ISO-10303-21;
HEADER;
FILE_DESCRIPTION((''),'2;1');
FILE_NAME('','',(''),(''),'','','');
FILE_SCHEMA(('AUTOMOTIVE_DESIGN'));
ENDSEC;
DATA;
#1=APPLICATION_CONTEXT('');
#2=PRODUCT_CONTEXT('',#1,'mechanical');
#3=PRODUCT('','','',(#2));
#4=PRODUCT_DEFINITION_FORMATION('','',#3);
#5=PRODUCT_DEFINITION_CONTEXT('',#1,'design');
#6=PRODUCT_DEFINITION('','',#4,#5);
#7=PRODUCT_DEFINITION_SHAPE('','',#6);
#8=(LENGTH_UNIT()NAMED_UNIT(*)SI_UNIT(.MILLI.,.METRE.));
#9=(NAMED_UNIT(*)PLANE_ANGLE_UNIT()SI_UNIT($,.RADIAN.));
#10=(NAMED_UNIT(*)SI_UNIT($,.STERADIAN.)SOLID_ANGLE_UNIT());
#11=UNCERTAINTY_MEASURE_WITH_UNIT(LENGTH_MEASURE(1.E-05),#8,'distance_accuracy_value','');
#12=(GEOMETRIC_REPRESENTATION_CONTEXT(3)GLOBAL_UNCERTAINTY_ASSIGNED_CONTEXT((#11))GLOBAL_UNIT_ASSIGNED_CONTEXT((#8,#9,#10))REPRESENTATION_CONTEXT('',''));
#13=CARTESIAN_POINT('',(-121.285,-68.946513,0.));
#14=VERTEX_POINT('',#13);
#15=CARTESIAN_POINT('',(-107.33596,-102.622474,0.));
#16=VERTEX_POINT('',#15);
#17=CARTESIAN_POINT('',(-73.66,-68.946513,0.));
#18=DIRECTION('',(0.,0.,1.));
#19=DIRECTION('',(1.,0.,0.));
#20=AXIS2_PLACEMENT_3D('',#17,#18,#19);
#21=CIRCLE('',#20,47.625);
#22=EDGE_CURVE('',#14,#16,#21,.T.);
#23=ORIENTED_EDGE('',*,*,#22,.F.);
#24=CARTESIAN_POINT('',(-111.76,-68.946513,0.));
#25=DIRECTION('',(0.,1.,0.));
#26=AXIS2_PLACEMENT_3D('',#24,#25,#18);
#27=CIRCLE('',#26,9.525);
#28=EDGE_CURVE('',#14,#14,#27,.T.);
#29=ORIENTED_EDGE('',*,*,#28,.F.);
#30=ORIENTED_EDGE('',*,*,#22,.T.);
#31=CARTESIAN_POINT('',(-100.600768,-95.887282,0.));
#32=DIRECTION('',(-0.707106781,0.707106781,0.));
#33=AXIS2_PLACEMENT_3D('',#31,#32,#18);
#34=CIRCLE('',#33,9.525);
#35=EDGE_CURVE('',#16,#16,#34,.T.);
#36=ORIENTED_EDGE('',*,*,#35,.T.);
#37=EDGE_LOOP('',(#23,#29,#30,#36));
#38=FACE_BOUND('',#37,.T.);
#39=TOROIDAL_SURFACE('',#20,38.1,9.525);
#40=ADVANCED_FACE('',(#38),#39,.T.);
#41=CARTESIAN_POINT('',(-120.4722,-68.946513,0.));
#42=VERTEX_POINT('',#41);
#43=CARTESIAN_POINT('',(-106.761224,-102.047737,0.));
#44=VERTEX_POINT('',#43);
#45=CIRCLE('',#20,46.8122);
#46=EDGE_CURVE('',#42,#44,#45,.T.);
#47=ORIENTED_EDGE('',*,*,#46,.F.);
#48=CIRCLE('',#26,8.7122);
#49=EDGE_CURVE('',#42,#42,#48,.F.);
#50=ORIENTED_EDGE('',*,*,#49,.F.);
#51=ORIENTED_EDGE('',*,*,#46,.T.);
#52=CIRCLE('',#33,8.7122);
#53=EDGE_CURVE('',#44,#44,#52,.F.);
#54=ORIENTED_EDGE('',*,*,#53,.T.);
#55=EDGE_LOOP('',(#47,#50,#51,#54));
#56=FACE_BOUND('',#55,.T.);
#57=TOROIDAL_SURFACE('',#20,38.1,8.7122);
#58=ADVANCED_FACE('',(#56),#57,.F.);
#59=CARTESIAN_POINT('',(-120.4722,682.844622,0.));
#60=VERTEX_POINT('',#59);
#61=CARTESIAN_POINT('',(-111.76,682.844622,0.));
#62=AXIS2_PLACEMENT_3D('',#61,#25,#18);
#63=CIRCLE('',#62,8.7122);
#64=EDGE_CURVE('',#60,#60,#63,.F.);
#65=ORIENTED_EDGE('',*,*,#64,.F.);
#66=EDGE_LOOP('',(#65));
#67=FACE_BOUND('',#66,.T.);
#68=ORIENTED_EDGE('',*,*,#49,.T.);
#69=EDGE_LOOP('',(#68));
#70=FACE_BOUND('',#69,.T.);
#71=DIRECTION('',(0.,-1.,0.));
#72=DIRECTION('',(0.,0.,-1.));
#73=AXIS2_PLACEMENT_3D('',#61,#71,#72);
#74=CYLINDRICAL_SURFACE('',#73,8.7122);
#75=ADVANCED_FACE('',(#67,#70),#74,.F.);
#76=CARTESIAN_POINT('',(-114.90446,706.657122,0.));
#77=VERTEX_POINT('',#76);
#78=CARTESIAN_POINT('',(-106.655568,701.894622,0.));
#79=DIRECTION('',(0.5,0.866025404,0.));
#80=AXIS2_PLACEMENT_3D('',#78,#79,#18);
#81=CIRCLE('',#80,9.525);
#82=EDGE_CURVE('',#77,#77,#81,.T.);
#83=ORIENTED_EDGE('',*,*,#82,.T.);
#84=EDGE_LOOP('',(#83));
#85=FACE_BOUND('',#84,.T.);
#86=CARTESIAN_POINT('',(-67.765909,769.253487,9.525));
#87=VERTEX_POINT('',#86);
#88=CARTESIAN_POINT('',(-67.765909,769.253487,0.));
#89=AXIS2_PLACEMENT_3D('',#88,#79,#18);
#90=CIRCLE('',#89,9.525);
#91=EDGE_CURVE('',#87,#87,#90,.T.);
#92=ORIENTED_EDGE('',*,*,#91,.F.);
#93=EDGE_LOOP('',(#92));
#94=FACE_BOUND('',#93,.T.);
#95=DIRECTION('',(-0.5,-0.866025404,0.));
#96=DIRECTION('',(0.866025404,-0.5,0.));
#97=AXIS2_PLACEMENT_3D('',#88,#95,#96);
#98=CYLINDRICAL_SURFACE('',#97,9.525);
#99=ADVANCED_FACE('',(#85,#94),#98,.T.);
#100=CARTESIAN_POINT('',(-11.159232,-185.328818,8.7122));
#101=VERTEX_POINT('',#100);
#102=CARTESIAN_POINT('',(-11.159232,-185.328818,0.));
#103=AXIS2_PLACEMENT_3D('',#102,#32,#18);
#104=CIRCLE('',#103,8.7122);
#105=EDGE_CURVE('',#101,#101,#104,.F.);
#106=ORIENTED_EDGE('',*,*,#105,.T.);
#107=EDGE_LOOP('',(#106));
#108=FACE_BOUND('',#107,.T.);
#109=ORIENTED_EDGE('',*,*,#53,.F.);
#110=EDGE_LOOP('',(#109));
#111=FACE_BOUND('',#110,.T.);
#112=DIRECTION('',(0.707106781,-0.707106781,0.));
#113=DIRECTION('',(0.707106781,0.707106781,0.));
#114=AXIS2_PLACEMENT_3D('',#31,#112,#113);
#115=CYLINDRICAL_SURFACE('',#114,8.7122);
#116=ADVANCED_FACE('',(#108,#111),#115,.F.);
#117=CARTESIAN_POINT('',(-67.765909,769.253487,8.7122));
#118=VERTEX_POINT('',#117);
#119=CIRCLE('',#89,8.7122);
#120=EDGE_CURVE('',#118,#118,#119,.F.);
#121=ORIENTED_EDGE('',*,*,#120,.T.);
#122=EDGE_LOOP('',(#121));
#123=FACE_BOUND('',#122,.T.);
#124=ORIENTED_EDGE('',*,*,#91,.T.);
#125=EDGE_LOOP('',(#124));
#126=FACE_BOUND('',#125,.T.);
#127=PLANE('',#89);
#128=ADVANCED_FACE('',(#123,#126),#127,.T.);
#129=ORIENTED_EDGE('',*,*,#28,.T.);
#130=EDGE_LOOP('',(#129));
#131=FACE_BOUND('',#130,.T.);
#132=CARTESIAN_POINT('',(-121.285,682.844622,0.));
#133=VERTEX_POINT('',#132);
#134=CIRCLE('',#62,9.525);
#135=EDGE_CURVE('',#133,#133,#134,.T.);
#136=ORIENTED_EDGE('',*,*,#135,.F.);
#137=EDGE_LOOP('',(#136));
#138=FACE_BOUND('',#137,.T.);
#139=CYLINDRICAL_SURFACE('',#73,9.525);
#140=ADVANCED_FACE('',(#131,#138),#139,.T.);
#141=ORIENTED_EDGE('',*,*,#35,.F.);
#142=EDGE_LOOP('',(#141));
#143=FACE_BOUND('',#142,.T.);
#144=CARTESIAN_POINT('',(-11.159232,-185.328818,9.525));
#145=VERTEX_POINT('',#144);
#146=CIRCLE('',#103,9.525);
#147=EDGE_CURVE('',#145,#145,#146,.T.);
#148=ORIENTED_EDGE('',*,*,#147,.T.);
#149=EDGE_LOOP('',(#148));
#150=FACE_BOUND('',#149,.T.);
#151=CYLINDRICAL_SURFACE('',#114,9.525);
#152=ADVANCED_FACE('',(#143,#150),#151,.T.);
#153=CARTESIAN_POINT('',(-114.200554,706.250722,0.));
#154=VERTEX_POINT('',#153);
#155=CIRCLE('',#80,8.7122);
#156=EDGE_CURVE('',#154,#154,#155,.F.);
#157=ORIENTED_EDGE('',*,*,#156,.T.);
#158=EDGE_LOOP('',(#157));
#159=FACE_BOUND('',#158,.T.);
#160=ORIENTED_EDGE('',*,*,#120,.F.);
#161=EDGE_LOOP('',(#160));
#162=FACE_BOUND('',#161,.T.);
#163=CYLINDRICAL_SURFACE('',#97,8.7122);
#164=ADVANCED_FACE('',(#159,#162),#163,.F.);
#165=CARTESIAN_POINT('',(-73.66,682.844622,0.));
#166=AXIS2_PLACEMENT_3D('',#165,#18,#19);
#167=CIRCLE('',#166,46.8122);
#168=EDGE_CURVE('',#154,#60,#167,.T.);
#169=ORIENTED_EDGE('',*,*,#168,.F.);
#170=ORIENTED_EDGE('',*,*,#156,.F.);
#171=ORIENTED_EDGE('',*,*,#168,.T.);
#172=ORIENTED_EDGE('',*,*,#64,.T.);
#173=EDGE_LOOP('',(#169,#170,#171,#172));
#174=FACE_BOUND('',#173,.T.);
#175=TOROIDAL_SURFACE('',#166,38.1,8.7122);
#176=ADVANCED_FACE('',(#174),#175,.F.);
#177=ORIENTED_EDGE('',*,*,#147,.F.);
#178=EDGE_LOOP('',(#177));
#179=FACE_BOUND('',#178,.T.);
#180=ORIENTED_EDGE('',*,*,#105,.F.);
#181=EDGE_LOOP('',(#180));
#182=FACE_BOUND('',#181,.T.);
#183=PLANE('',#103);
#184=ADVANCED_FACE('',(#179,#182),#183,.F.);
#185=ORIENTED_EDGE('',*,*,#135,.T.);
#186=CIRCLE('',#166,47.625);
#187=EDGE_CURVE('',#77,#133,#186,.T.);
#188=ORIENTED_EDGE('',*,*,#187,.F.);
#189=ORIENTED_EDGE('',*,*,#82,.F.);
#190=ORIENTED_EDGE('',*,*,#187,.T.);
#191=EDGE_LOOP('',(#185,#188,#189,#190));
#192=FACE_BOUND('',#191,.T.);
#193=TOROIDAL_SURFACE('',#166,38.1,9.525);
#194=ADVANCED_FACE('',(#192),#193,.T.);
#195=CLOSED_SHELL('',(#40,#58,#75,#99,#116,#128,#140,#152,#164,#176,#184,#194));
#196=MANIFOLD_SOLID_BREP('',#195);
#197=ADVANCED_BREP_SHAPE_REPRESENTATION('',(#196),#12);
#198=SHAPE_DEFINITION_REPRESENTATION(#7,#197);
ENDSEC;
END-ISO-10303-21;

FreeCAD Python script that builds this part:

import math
import FreeCAD as App
import Part
import Sketcher

V = App.Vector
Q = App.Units.Quantity

doc = App.newDocument("Part")
body = doc.addObject("PartDesign::Body", "Body")

# Sketch on XZ plane
sketch1 = doc.addObject("Sketcher::SketchObject", "Sketch")
body.addObject(sketch1)
sketch1.AttachmentSupport = (doc.XZ_Plane, [""])
sketch1.MapMode = "FlatFace"
sketch1.addGeometry([
    Part.Circle(V(-112, 0, 0), V(0, 0, 1), 10),
    Part.Circle(V(-112, 0, 0), V(0, 0, 1), 9),
], False)
sketch1.addConstraint([
    Sketcher.Constraint("Coincident", 1, 3, 0, 3),
    Sketcher.Constraint("PointOnObject", 0, 3, -1),
    Sketcher.Constraint("Diameter", 0, Q("0.75 in")),
    Sketcher.Constraint("Diameter", 1, Q("0.686 in")),
    Sketcher.Constraint("DistanceX", 0, 3, -1, 1, Q("4.4 in")),
])

# Sketch on XY plane
sketch2 = doc.addObject("Sketcher::SketchObject", "Sketch001")
body.addObject(sketch2)
sketch2.AttachmentSupport = (doc.XY_Plane, [""])
sketch2.MapMode = "FlatFace"
sketch2.addGeometry([
    Part.LineSegment(V(-11, -185, 0), V(-101, -96, 0)),  # 0
    Part.ArcOfCircle(Part.Circle(V(-74, -69, 0), V(0, 0, 1), 38), math.radians(180), math.radians(225)),  # 1
    Part.LineSegment(V(-112, -69, 0), V(-112, 683, 0)),  # 2
    Part.ArcOfCircle(Part.Circle(V(-74, 683, 0), V(0, 0, 1), 38), math.radians(150), math.radians(180)),  # 3
    Part.LineSegment(V(-107, 702, 0), V(-68, 769, 0)),  # 4
], False)
sketch2.addConstraint([
    Sketcher.Constraint("Tangent", 0, 2, 1, 2),
    Sketcher.Constraint("Tangent", 1, 1, 2, 1),
    Sketcher.Constraint("Tangent", 2, 2, 3, 2),
    Sketcher.Constraint("Tangent", 3, 1, 4, 1),
    Sketcher.Constraint("Vertical", 2),
    Sketcher.Constraint("Equal", 1, 3),
    Sketcher.Constraint("Radius", 1, Q("1.5 in")),
    Sketcher.Constraint("Angle", 0, Q("135 deg")),
    Sketcher.Constraint("Angle", 4, Q("60 deg")),
    Sketcher.Constraint("DistanceY", 1, 3, 4, 2, Q("33 in")),
    Sketcher.Constraint("DistanceX", 1, 3, -1, 1, Q("2.9 in")),
    Sketcher.Constraint("DistanceY", 2, 1, 2, 2, 751.791136),
    Sketcher.Constraint("DistanceX", 0, 1, -1, 1, 11.159232),
    Sketcher.Constraint("DistanceY", 0, 1, -1, 1, 185.328818),
])
doc.recompute()

additivepipe = doc.addObject("PartDesign::AdditivePipe", "AdditivePipe")
body.addObject(additivepipe)
additivepipe.Profile = sketch1
additivepipe.Spine = (sketch2, ["Edge1", "Edge2", "Edge3", "Edge4", "Edge5"])

doc.recompute()
